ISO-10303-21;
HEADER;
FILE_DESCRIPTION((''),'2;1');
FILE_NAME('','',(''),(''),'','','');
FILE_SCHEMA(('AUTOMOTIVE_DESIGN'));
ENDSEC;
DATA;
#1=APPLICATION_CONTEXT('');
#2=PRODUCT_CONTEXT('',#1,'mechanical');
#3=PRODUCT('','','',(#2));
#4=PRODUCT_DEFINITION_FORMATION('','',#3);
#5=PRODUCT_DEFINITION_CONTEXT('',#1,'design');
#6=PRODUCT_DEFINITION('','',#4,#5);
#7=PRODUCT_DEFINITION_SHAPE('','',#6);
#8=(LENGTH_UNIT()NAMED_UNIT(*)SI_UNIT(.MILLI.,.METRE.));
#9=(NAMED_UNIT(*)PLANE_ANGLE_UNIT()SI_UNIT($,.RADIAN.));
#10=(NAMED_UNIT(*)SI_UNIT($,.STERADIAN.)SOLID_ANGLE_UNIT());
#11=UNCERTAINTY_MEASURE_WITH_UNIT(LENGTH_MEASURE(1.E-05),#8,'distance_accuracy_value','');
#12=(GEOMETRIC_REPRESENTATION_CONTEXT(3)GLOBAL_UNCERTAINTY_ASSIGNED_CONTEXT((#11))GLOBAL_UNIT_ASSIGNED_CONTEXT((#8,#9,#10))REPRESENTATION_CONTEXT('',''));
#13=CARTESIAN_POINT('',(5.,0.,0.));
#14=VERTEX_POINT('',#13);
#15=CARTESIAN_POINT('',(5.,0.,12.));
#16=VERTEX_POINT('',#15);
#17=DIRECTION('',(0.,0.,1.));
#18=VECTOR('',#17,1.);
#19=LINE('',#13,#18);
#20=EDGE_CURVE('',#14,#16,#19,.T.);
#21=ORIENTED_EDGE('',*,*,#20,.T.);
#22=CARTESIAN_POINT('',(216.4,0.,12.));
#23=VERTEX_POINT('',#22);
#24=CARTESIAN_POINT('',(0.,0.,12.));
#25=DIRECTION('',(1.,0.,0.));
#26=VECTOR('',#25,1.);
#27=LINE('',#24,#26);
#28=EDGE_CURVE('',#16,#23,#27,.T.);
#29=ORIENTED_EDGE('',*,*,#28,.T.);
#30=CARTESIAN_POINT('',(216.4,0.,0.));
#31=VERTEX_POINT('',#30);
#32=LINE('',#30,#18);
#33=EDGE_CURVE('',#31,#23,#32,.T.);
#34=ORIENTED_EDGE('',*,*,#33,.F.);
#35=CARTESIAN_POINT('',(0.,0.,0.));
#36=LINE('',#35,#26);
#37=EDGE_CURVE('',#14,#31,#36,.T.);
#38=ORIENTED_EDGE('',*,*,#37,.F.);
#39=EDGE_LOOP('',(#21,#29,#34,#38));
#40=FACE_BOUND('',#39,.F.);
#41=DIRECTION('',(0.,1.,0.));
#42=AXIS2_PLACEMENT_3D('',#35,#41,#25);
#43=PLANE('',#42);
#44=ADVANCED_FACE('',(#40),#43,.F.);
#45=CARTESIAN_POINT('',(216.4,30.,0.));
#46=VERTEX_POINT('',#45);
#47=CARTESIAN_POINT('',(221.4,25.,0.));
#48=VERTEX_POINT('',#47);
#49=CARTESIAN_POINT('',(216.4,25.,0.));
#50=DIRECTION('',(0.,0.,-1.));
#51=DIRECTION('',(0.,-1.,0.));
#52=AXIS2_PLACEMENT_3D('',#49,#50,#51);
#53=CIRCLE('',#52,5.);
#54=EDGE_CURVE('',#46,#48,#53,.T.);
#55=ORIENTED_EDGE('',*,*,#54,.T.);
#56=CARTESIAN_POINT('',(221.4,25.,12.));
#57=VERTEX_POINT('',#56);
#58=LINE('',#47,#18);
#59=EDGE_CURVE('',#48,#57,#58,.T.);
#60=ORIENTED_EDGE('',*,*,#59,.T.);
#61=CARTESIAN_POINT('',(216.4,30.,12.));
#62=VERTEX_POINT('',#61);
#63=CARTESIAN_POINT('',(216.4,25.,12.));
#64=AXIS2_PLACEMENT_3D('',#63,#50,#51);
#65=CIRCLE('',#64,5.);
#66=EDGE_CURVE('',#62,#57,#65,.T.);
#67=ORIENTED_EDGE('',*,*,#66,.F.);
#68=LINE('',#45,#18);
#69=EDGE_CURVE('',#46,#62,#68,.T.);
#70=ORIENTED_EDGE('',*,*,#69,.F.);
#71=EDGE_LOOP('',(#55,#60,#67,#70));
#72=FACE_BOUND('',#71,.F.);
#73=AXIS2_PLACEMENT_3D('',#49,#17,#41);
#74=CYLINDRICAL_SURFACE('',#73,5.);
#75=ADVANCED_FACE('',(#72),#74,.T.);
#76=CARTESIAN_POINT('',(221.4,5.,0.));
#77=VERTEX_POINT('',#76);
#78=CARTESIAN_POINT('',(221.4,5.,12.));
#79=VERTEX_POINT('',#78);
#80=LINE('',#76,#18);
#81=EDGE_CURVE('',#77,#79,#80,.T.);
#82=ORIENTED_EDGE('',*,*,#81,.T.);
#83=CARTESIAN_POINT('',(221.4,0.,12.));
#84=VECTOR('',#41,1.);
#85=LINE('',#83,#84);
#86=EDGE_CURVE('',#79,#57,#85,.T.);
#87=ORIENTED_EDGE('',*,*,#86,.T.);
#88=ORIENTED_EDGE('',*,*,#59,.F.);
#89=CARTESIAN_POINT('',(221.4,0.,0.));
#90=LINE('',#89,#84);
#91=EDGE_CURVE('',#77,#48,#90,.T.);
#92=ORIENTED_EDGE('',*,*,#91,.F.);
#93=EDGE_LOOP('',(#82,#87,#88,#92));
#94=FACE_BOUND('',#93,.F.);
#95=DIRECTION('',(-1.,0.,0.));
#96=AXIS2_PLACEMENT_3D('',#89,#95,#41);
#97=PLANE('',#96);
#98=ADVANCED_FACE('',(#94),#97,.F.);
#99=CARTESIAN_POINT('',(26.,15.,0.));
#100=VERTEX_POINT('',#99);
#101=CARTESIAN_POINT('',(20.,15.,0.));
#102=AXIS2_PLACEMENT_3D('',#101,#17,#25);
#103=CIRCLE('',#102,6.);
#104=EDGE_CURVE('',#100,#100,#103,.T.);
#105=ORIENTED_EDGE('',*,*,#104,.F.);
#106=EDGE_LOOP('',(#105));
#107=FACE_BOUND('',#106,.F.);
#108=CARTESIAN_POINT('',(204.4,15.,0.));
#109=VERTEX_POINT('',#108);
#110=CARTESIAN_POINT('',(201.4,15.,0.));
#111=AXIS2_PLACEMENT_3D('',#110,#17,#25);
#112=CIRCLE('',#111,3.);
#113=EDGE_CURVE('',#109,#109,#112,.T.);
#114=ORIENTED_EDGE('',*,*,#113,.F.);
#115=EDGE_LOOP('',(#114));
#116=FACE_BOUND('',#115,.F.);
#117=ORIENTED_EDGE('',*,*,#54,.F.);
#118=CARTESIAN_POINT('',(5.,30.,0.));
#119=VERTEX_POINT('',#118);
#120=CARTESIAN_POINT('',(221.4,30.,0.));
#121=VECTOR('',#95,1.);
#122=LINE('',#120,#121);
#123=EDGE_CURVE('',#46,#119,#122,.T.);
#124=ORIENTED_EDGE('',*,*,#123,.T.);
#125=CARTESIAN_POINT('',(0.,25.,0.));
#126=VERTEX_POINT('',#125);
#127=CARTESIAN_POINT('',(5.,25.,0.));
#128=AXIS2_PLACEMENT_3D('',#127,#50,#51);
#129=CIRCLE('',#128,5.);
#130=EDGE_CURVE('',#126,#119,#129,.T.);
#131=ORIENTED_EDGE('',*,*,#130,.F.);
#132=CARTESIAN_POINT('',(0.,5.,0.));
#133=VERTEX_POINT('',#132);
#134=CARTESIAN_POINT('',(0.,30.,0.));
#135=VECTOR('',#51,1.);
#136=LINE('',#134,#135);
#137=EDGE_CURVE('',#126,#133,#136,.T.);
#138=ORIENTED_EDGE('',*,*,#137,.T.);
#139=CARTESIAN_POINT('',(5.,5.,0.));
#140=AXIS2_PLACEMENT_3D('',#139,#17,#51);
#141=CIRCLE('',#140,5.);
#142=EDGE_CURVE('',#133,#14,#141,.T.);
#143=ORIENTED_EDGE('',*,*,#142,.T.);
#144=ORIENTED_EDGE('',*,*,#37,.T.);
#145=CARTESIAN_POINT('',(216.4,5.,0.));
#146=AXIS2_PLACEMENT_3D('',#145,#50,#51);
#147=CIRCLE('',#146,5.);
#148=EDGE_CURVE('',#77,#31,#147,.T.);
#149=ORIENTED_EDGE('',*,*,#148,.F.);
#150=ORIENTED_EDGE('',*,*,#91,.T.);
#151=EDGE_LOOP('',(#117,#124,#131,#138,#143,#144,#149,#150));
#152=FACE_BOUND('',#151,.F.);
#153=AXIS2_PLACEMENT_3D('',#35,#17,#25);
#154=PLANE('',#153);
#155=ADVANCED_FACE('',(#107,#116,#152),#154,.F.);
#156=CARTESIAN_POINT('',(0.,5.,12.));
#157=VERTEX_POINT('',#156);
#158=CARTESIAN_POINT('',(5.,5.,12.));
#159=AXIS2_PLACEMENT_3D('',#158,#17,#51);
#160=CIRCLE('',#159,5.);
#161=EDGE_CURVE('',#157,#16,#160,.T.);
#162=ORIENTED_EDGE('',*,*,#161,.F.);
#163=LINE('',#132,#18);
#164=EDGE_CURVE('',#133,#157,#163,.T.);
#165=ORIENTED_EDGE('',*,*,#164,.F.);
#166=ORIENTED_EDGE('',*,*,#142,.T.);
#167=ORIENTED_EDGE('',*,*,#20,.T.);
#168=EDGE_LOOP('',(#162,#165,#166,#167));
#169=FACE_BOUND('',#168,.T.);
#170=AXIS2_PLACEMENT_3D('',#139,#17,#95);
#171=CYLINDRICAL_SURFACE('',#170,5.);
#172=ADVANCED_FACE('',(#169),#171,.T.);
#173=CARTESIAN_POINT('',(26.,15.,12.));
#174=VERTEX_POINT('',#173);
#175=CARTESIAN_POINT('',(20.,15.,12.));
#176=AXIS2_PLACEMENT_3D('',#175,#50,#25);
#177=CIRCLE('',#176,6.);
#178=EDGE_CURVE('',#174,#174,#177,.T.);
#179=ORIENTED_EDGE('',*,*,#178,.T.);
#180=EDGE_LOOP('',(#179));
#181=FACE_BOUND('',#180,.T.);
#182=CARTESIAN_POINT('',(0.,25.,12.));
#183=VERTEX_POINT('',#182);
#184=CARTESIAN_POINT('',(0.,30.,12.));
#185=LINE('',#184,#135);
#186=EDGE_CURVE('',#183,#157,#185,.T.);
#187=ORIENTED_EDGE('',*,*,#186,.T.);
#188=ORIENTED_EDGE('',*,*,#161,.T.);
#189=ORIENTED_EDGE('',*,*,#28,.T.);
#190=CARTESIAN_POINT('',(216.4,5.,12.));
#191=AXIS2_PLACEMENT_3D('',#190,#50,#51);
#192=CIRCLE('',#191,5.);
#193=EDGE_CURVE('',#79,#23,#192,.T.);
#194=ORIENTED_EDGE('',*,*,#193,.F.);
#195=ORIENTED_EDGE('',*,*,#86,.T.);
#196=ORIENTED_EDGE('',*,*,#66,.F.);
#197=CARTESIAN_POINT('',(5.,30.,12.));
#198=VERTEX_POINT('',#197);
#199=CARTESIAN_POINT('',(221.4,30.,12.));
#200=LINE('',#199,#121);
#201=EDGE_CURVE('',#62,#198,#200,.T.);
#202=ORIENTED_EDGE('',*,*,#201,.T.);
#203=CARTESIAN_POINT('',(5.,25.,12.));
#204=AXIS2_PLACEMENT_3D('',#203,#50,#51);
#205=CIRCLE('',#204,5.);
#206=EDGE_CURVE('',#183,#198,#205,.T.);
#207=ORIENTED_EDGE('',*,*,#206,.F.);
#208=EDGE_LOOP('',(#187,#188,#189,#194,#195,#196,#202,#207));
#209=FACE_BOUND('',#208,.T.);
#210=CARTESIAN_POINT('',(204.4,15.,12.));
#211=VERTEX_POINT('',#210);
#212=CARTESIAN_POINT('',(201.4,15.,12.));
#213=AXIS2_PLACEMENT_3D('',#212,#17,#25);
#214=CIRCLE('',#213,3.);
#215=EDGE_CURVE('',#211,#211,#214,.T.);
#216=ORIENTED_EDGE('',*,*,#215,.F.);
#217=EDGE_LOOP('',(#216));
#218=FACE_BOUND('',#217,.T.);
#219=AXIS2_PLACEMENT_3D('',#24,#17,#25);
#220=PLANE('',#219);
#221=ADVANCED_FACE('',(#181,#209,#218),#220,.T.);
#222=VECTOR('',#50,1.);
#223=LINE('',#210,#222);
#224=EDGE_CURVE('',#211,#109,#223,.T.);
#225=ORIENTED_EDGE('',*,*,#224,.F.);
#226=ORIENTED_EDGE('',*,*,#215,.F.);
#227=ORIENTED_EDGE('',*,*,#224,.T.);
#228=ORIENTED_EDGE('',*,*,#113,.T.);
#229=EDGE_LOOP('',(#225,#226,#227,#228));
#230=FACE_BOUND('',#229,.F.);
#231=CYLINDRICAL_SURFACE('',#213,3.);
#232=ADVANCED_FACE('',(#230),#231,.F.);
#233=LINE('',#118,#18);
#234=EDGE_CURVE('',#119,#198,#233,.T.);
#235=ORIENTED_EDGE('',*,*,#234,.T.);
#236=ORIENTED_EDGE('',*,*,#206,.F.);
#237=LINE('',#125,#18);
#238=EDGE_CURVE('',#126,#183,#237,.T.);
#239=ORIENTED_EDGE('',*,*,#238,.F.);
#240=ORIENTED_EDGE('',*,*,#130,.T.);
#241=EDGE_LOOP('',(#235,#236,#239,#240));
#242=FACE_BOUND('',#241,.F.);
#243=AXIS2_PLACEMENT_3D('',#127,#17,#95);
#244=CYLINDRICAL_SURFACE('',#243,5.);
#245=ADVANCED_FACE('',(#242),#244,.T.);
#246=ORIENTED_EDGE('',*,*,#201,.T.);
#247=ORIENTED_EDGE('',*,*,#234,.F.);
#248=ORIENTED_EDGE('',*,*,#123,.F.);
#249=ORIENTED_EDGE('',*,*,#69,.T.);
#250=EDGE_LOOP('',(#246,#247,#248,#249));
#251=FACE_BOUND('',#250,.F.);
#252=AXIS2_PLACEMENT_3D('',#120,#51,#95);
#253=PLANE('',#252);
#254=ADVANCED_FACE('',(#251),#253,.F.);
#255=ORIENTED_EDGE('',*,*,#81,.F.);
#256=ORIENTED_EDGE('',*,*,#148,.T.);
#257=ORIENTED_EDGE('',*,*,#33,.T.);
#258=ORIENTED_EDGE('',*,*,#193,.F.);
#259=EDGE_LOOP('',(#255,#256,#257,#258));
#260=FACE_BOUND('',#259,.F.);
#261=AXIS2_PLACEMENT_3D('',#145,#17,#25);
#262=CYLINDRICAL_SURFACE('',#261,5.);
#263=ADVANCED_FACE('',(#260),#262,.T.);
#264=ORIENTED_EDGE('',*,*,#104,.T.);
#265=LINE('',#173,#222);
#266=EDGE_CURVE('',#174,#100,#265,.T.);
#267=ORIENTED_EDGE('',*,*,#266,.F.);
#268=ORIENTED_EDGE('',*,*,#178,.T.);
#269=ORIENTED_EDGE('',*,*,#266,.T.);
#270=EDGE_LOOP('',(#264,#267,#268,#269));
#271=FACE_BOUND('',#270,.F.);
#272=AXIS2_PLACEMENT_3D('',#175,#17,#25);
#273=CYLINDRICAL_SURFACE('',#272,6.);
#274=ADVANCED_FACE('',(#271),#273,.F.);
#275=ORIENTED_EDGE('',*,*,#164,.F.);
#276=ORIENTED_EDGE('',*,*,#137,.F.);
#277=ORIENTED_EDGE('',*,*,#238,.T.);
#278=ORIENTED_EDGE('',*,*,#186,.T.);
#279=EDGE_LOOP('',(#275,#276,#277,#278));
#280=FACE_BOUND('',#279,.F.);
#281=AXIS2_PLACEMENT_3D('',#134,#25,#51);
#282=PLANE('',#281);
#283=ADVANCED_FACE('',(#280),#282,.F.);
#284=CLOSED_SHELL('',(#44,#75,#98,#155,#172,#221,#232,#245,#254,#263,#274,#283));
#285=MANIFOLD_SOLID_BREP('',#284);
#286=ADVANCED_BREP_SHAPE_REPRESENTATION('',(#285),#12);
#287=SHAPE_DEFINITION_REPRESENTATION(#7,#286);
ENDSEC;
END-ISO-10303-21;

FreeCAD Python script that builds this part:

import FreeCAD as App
import Part
import Sketcher
Q = App.Units.Quantity


def edges_at(feature, points):
    """Names of the edges that pass closest to the given points."""
    edges = feature.Shape.Edges
    near = lambda p: min(range(len(edges)), key=lambda i: edges[i].distToShape(Part.Vertex(*p))[0])
    return sorted({f"Edge{near(p) + 1}" for p in points})


def add_polygon(sketch, points):
    """Adds a closed chain of lines whose ends are joined by coincident constraints."""
    first, n = sketch.GeometryCount, len(points)
    for a, b in zip(points, points[1:] + points[:1]):
        sketch.addGeometry(Part.LineSegment(App.Vector(*a, 0), App.Vector(*b, 0)), False)
    for i in range(n):
        sketch.addConstraint(Sketcher.Constraint("Coincident", first + i, 2, first + (i + 1) % n, 1))

doc = App.newDocument("Part")
body = doc.addObject("PartDesign::Body", "Body")

sketch1 = doc.addObject("Sketcher::SketchObject", "Sketch")
body.addObject(sketch1)
sketch1.AttachmentSupport = (doc.XY_Plane, [""])
sketch1.MapMode = "FlatFace"
add_polygon(sketch1, [(0, 30), (0, 0), (221, 0), (221, 30)])
sketch1.addConstraint([
    Sketcher.Constraint("Vertical", 0),
    Sketcher.Constraint("Horizontal", 1),
    Sketcher.Constraint("Vertical", 2),
    Sketcher.Constraint("Horizontal", 3),
    Sketcher.Constraint("Coincident", 0, 2, -1, 1),
    Sketcher.Constraint("DistanceY", 0, 2, 0, 1, Q("30 mm")),
    Sketcher.Constraint("DistanceX", 1, 1, 1, 2, Q("221.4 mm")),
])
pad1 = doc.addObject("PartDesign::Pad", "Pad")
body.addObject(pad1)
pad1.Profile = sketch1
pad1.Length = 12
doc.recompute()

fillet = doc.addObject("PartDesign::Fillet", "Fillet")
body.addObject(fillet)
fillet.Base = (pad1, edges_at(pad1, [
    (221.4, 30, 6),
    (221.4, 0, 6),
    (0, 0, 6),
    (0, 30, 6),
]))
fillet.Radius = 5

sketch2 = doc.addObject("Sketcher::SketchObject", "Sketch001")
body.addObject(sketch2)
sketch2.AttachmentSupport = (doc.XY_Plane, [""])
sketch2.MapMode = "FlatFace"
sketch2.AttachmentOffset = App.Placement(App.Vector(0, 0, 12), App.Rotation())
sketch2.addGeometry([
    Part.Circle(App.Vector(20, 15, 0), App.Vector(0, 0, 1), 6),
    Part.Circle(App.Vector(201.4, 15, 0), App.Vector(0, 0, 1), 3),
], False)
sketch2.addConstraint([
    Sketcher.Constraint("Horizontal", 0, 3, 1, 3),
    Sketcher.Constraint("Diameter", 0, Q("12 mm")),
    Sketcher.Constraint("Diameter", 1, Q("6 mm")),
    Sketcher.Constraint("DistanceX", -1, 1, 0, 3, Q("20 mm")),
    Sketcher.Constraint("DistanceY", -1, 1, 0, 3, Q("15 mm")),
    Sketcher.Constraint("DistanceX", -1, 1, 1, 3, Q("201.4 mm")),
])
pocket1 = doc.addObject("PartDesign::Pocket", "Pocket")
body.addObject(pocket1)
pocket1.Profile = sketch2
pocket1.Type = "ThroughAll"

doc.recompute()
